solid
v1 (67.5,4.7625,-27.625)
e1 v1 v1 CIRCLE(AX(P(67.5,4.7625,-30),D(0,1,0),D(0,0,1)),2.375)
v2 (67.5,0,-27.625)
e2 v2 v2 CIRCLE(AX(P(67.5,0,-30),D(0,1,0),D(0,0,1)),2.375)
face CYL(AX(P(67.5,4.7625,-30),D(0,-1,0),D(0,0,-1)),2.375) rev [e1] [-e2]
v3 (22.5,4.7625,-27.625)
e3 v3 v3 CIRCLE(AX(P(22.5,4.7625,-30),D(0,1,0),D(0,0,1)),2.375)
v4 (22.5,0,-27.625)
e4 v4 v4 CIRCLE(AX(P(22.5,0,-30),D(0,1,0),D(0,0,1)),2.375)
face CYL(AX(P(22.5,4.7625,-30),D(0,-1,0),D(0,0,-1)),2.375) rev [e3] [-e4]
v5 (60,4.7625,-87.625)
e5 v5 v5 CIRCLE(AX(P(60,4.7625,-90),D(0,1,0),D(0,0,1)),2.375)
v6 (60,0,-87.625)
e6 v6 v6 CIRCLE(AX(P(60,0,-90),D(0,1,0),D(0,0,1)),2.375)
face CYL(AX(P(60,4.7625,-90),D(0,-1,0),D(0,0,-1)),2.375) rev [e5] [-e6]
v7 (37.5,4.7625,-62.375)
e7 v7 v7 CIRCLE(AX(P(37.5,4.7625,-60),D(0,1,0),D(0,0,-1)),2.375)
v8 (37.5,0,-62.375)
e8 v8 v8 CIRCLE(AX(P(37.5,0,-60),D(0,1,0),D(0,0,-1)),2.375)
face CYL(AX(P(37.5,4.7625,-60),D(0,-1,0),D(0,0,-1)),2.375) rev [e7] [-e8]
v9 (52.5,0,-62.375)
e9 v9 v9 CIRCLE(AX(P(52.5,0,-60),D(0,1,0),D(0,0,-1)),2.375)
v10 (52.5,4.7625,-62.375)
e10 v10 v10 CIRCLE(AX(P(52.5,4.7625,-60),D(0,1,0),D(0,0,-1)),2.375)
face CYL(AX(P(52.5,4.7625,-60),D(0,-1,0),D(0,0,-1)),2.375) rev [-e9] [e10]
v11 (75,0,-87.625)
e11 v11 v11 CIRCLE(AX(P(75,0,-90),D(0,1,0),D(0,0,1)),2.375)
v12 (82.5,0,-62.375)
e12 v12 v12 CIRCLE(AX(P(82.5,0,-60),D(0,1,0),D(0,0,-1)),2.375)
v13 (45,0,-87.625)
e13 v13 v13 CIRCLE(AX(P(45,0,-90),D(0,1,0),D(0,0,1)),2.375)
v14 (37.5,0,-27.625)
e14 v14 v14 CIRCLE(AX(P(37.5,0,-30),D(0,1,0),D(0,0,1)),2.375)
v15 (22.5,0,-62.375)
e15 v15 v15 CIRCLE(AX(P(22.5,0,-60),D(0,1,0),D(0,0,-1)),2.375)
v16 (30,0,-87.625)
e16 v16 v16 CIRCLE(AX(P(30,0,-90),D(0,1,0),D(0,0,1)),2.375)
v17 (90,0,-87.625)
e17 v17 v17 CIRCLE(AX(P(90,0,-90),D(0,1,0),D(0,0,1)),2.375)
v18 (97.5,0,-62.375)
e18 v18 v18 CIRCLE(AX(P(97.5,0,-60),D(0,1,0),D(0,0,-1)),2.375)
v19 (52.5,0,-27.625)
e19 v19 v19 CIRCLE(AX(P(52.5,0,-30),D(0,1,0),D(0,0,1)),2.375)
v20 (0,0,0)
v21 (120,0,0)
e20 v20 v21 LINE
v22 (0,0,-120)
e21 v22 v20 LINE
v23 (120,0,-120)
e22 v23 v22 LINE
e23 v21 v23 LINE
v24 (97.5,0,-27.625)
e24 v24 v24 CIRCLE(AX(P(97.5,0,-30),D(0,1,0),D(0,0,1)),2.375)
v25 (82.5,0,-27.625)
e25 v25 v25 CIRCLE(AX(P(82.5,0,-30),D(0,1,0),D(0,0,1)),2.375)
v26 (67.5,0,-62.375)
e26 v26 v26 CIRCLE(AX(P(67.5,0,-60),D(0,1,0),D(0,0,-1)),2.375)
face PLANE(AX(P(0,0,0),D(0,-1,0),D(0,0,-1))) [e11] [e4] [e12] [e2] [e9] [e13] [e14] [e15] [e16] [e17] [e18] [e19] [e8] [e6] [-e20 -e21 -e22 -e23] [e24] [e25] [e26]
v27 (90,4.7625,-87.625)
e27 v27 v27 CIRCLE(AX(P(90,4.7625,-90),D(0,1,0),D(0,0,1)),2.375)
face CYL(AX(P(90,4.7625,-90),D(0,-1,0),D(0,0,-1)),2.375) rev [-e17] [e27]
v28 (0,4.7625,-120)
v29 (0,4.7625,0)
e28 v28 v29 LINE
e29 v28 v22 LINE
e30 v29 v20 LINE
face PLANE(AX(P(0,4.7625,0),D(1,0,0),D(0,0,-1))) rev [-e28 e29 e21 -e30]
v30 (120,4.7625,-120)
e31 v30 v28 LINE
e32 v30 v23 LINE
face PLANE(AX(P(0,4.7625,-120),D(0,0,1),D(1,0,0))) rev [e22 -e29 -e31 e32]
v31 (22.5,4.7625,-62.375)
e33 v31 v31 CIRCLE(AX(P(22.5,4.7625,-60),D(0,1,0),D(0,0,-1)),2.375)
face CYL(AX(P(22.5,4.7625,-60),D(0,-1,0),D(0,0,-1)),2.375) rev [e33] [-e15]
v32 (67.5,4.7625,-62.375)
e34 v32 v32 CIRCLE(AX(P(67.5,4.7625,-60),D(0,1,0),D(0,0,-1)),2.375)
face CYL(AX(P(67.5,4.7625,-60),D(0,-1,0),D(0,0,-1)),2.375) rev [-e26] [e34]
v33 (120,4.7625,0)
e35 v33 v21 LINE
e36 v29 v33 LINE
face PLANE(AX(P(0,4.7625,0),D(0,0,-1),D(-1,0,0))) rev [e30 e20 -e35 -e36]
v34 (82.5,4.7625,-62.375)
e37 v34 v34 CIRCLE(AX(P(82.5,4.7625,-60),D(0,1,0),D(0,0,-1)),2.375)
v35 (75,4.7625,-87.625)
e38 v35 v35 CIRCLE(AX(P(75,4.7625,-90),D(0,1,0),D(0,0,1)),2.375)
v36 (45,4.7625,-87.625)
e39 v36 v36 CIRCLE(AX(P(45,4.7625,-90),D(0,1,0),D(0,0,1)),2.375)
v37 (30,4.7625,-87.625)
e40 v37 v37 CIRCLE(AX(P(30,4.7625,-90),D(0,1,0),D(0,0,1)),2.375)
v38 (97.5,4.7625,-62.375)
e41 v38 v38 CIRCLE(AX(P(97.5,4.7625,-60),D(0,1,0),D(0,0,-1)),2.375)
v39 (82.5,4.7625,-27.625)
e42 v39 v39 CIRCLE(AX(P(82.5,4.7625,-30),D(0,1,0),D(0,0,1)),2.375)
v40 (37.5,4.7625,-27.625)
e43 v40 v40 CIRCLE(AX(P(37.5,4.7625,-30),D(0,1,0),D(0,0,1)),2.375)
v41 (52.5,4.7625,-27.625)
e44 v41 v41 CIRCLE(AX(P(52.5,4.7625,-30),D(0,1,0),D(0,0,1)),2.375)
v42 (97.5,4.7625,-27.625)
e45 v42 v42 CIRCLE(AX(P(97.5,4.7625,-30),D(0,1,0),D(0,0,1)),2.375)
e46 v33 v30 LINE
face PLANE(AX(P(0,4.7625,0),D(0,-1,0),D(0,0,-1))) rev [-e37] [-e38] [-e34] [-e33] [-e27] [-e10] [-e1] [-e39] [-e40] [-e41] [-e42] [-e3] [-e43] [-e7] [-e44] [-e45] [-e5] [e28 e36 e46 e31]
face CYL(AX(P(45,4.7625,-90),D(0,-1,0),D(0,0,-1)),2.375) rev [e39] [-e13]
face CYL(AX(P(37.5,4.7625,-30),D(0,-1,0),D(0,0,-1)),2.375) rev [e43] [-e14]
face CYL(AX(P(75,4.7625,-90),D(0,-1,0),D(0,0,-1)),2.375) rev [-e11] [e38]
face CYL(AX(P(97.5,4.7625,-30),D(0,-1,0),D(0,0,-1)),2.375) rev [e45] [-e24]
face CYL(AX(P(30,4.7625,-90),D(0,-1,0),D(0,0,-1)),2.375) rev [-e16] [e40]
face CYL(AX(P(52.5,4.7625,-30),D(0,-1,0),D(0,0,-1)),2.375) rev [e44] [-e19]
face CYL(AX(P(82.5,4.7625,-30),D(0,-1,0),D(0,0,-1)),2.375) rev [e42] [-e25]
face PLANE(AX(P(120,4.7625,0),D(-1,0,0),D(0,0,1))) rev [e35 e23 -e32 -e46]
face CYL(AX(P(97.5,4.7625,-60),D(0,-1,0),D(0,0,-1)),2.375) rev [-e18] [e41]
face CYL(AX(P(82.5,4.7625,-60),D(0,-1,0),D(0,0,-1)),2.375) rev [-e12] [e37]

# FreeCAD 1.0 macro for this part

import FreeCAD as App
import Part
import Sketcher

V = App.Vector
Q = App.Units.Quantity


def add_polygon(sketch, points):
    """Adds a closed chain of lines whose ends are joined by coincident constraints."""
    first, n = sketch.GeometryCount, len(points)
    for a, b in zip(points, points[1:] + points[:1]):
        sketch.addGeometry(Part.LineSegment(App.Vector(*a, 0), App.Vector(*b, 0)), False)
    for i in range(n):
        sketch.addConstraint(Sketcher.Constraint("Coincident", first + i, 2, first + (i + 1) % n, 1))

doc = App.newDocument("Part")
params = doc.addObject("Spreadsheet::Sheet", "Params")
for row, (alias, value) in enumerate([
    ("sketch1_diameter", "4.75 mm"),
    ("sketch1_width", "120 mm"),
    ("pad1_length", "4.7625 mm"),
], start=1):
    params.set(f"A{row}", alias)
    params.set(f"B{row}", "=" + value)
    params.setAlias(f"B{row}", alias)

body = doc.addObject("PartDesign::Body", "Body")

sketch1 = body.newObject("Sketcher::SketchObject", "Sketch")
sketch1.AttachmentSupport = (doc.getObject("XZ_Plane"), [""])
sketch1.MapMode = "FlatFace"
add_polygon(sketch1, [(0, -120), (0, 0), (120, 0), (120, -120)])
sketch1.addGeometry(Part.Circle(V(22.5, -30, 0), V(0, 0, 1), 2.375), False)
sketch1.addGeometry(Part.Circle(V(37.5, -30, 0), V(0, 0, 1), 2.375), False)
sketch1.addGeometry(Part.Circle(V(52.5, -30, 0), V(0, 0, 1), 2.375), False)
sketch1.addGeometry(Part.Circle(V(67.5, -30, 0), V(0, 0, 1), 2.375), False)
sketch1.addGeometry(Part.Circle(V(82.5, -30, 0), V(0, 0, 1), 2.375), False)
sketch1.addGeometry(Part.Circle(V(97.5, -30, 0), V(0, 0, 1), 2.375), False)
sketch1.addGeometry(Part.Circle(V(22.5, -60, 0), V(0, 0, 1), 2.375), False)
sketch1.addGeometry(Part.Circle(V(37.5, -60, 0), V(0, 0, 1), 2.375), False)
sketch1.addGeometry(Part.Circle(V(52.5, -60, 0), V(0, 0, 1), 2.375), False)
sketch1.addGeometry(Part.Circle(V(30, -90, 0), V(0, 0, 1), 2.375), False)
sketch1.addGeometry(Part.Circle(V(45, -90, 0), V(0, 0, 1), 2.375), False)
sketch1.addGeometry(Part.Circle(V(67.5, -60, 0), V(0, 0, 1), 2.375), False)
sketch1.addGeometry(Part.Circle(V(82.5, -60, 0), V(0, 0, 1), 2.375), False)
sketch1.addGeometry(Part.Circle(V(97.5, -60, 0), V(0, 0, 1), 2.375), False)
sketch1.addGeometry(Part.Circle(V(60, -90, 0), V(0, 0, 1), 2.375), False)
sketch1.addGeometry(Part.Circle(V(75, -90, 0), V(0, 0, 1), 2.375), False)
sketch1.addGeometry(Part.Circle(V(90, -90, 0), V(0, 0, 1), 2.375), False)
sketch1.addConstraint([
    Sketcher.Constraint("Vertical", 0),
    Sketcher.Constraint("Horizontal", 1),
    Sketcher.Constraint("Vertical", 2),
    Sketcher.Constraint("Horizontal", 3),
    Sketcher.Constraint("Coincident", 0, 2, -1, 1),
    Sketcher.Constraint("Equal", 4, 5),
    Sketcher.Constraint("Equal", 5, 6),
    Sketcher.Constraint("Equal", 6, 7),
    Sketcher.Constraint("Equal", 7, 8),
    Sketcher.Constraint("Equal", 8, 9),
    Sketcher.Constraint("Equal", 9, 10),
    Sketcher.Constraint("Equal", 10, 11),
    Sketcher.Constraint("Equal", 11, 12),
    Sketcher.Constraint("Equal", 12, 13),
    Sketcher.Constraint("Equal", 13, 14),
    Sketcher.Constraint("Equal", 14, 15),
    Sketcher.Constraint("Equal", 15, 16),
    Sketcher.Constraint("Equal", 16, 17),
    Sketcher.Constraint("Equal", 17, 18),
    Sketcher.Constraint("Equal", 18, 19),
    Sketcher.Constraint("Equal", 19, 20),
    Sketcher.Constraint("Horizontal", 4, 3, 5, 3),
    Sketcher.Constraint("Horizontal", 5, 3, 6, 3),
    Sketcher.Constraint("Horizontal", 6, 3, 7, 3),
    Sketcher.Constraint("Horizontal", 7, 3, 8, 3),
    Sketcher.Constraint("Horizontal", 8, 3, 9, 3),
    Sketcher.Constraint("Horizontal", 10, 3, 11, 3),
    Sketcher.Constraint("Horizontal", 11, 3, 12, 3),
    Sketcher.Constraint("Horizontal", 13, 3, 14, 3),
    Sketcher.Constraint("Horizontal", 12, 3, 15, 3),
    Sketcher.Constraint("Horizontal", 15, 3, 16, 3),
    Sketcher.Constraint("Horizontal", 16, 3, 17, 3),
    Sketcher.Constraint("Horizontal", 14, 3, 18, 3),
    Sketcher.Constraint("Horizontal", 18, 3, 19, 3),
    Sketcher.Constraint("Horizontal", 19, 3, 20, 3),
    Sketcher.Constraint("Vertical", 4, 3, 10, 3),
    Sketcher.Constraint("Vertical", 5, 3, 11, 3),
    Sketcher.Constraint("Vertical", 6, 3, 12, 3),
    Sketcher.Constraint("Vertical", 7, 3, 15, 3),
    Sketcher.Constraint("Vertical", 8, 3, 16, 3),
    Sketcher.Constraint("Vertical", 9, 3, 17, 3),
    Sketcher.Constraint("Equal", 3, 0),
    Sketcher.Constraint("Diameter", 4, Q("4.75 mm")),
    Sketcher.Constraint("DistanceX", 1, 1, 1, 2, Q("120 mm")),
    Sketcher.Constraint("DistanceY", 4, 3, -1, 1, Q("30 mm")),
    Sketcher.Constraint("DistanceY", 10, 3, -1, 1, Q("60 mm")),
    Sketcher.Constraint("DistanceX", -1, 1, 13, 3, Q("30 mm")),
    Sketcher.Constraint("DistanceY", 13, 3, -1, 1, Q("90 mm")),
    Sketcher.Constraint("DistanceX", -1, 1, 14, 3, Q("45 mm")),
    Sketcher.Constraint("DistanceX", -1, 1, 18, 3, Q("60 mm")),
    Sketcher.Constraint("DistanceX", -1, 1, 19, 3, Q("75 mm")),
    Sketcher.Constraint("DistanceX", -1, 1, 20, 3, Q("90 mm")),
    Sketcher.Constraint("DistanceX", 4, 3, 5, 3, Q("15 mm")),
    Sketcher.Constraint("DistanceX", 5, 3, 6, 3, Q("15 mm")),
    Sketcher.Constraint("DistanceX", 6, 3, 7, 3, Q("15 mm")),
    Sketcher.Constraint("DistanceX", 7, 3, 8, 3, Q("15 mm")),
    Sketcher.Constraint("DistanceX", 8, 3, 9, 3, Q("15 mm")),
    Sketcher.Constraint("DistanceX", -1, 1, 4, 3, Q("22.5 mm")),
])
sketch1.setExpression("Constraints[46]", "Params.sketch1_diameter")
sketch1.setExpression("Constraints[47]", "Params.sketch1_width")
pad1 = body.newObject("PartDesign::Pad", "Pad")
pad1.Profile = sketch1
pad1.setExpression("Length", "Params.pad1_length")
pad1.Reversed = True

doc.recompute()
